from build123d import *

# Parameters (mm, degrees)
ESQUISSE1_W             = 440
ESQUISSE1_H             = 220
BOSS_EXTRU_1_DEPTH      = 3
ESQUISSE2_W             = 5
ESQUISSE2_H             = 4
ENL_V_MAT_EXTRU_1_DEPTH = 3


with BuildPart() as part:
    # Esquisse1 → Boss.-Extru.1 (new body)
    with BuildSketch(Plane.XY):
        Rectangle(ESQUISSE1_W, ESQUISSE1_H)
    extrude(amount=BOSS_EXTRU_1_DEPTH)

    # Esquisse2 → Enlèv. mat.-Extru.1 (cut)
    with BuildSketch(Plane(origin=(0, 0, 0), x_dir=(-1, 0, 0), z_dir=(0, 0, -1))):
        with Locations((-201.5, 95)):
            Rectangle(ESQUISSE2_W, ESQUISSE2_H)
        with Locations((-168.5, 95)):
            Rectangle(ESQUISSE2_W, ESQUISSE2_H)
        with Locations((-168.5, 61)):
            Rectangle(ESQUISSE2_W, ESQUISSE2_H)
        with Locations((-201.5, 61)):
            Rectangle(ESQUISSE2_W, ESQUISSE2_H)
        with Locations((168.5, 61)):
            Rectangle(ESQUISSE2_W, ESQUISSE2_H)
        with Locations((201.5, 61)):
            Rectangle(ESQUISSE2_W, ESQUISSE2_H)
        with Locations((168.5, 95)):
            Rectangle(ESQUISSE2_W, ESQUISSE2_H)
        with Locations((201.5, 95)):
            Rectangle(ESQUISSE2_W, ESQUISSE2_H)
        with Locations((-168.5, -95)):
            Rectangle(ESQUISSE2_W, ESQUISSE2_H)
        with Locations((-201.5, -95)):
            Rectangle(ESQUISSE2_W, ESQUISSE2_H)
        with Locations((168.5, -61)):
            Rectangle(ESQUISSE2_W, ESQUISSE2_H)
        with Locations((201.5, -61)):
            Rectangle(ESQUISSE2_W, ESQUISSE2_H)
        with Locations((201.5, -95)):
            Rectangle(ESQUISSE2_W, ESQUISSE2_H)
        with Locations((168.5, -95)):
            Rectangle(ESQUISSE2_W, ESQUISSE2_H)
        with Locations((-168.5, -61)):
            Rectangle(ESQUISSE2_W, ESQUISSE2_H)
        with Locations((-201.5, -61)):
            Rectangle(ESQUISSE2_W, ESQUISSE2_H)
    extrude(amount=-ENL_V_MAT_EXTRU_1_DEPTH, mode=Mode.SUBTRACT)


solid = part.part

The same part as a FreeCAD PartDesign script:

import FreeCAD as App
import Part
import Sketcher
Q = App.Units.Quantity

doc = App.newDocument("Part")
body = doc.addObject("PartDesign::Body", "Body")

# Sketch on XY plane
sketch1 = body.newObject("Sketcher::SketchObject", "Sketch")
sketch1.AttachmentSupport = (doc.getObject("XY_Plane"), [""])
sketch1.MapMode = "FlatFace"
sketch1.addGeometry(Part.LineSegment(App.Vector(-220, 110, 0), App.Vector(-220, -110, 0)), False)
sketch1.addGeometry(Part.LineSegment(App.Vector(-220, -110, 0), App.Vector(220, -110, 0)), False)
sketch1.addGeometry(Part.LineSegment(App.Vector(220, -110, 0), App.Vector(220, 110, 0)), False)
sketch1.addGeometry(Part.LineSegment(App.Vector(220, 110, 0), App.Vector(-220, 110, 0)), False)
sketch1.addConstraint(Sketcher.Constraint("Coincident", 0, 2, 1, 1))
sketch1.addConstraint(Sketcher.Constraint("Coincident", 1, 2, 2, 1))
sketch1.addConstraint(Sketcher.Constraint("Coincident", 2, 2, 3, 1))
sketch1.addConstraint(Sketcher.Constraint("Coincident", 3, 2, 0, 1))
sketch1.addConstraint(Sketcher.Constraint("Vertical", 0))
sketch1.addConstraint(Sketcher.Constraint("Horizontal", 1))
sketch1.addConstraint(Sketcher.Constraint("Vertical", 2))
sketch1.addConstraint(Sketcher.Constraint("Horizontal", 3))
sketch1.addConstraint(Sketcher.Constraint("Symmetric", 0, 2, 2, 2, -1, 1))
sketch1.addConstraint(Sketcher.Constraint("DistanceX", 1, 1, 1, 2, Q("440 mm")))
sketch1.addConstraint(Sketcher.Constraint("DistanceY", 0, 2, 0, 1, Q("220 mm")))
pad1 = body.newObject("PartDesign::Pad", "Pad")
pad1.Profile = sketch1
pad1.Length = 3

# Sketch on XY plane
sketch2 = body.newObject("Sketcher::SketchObject", "Sketch001")
sketch2.AttachmentSupport = (doc.getObject("XY_Plane"), [""])
sketch2.MapMode = "FlatFace"
sketch2.addGeometry(Part.LineSegment(App.Vector(204, 97, 0), App.Vector(204, 93, 0)), False)
sketch2.addGeometry(Part.LineSegment(App.Vector(204, 93, 0), App.Vector(199, 93, 0)), False)
sketch2.addGeometry(Part.LineSegment(App.Vector(199, 93, 0), App.Vector(199, 97, 0)), False)
sketch2.addGeometry(Part.LineSegment(App.Vector(199, 97, 0), App.Vector(204, 97, 0)), False)
sketch2.addGeometry(Part.LineSegment(App.Vector(171, 97, 0), App.Vector(171, 93, 0)), False)
sketch2.addGeometry(Part.LineSegment(App.Vector(171, 93, 0), App.Vector(166, 93, 0)), False)
sketch2.addGeometry(Part.LineSegment(App.Vector(166, 93, 0), App.Vector(166, 97, 0)), False)
sketch2.addGeometry(Part.LineSegment(App.Vector(166, 97, 0), App.Vector(171, 97, 0)), False)
sketch2.addGeometry(Part.LineSegment(App.Vector(171, 63, 0), App.Vector(171, 59, 0)), False)
sketch2.addGeometry(Part.LineSegment(App.Vector(171, 59, 0), App.Vector(166, 59, 0)), False)
sketch2.addGeometry(Part.LineSegment(App.Vector(166, 59, 0), App.Vector(166, 63, 0)), False)
sketch2.addGeometry(Part.LineSegment(App.Vector(166, 63, 0), App.Vector(171, 63, 0)), False)
sketch2.addGeometry(Part.LineSegment(App.Vector(204, 63, 0), App.Vector(204, 59, 0)), False)
sketch2.addGeometry(Part.LineSegment(App.Vector(204, 59, 0), App.Vector(199, 59, 0)), False)
sketch2.addGeometry(Part.LineSegment(App.Vector(199, 59, 0), App.Vector(199, 63, 0)), False)
sketch2.addGeometry(Part.LineSegment(App.Vector(199, 63, 0), App.Vector(204, 63, 0)), False)
sketch2.addGeometry(Part.LineSegment(App.Vector(-166, 63, 0), App.Vector(-166, 59, 0)), False)
sketch2.addGeometry(Part.LineSegment(App.Vector(-166, 59, 0), App.Vector(-171, 59, 0)), False)
sketch2.addGeometry(Part.LineSegment(App.Vector(-171, 59, 0), App.Vector(-171, 63, 0)), False)
sketch2.addGeometry(Part.LineSegment(App.Vector(-171, 63, 0), App.Vector(-166, 63, 0)), False)
sketch2.addGeometry(Part.LineSegment(App.Vector(-199, 63, 0), App.Vector(-199, 59, 0)), False)
sketch2.addGeometry(Part.LineSegment(App.Vector(-199, 59, 0), App.Vector(-204, 59, 0)), False)
sketch2.addGeometry(Part.LineSegment(App.Vector(-204, 59, 0), App.Vector(-204, 63, 0)), False)
sketch2.addGeometry(Part.LineSegment(App.Vector(-204, 63, 0), App.Vector(-199, 63, 0)), False)
sketch2.addGeometry(Part.LineSegment(App.Vector(-166, 97, 0), App.Vector(-166, 93, 0)), False)
sketch2.addGeometry(Part.LineSegment(App.Vector(-166, 93, 0), App.Vector(-171, 93, 0)), False)
sketch2.addGeometry(Part.LineSegment(App.Vector(-171, 93, 0), App.Vector(-171, 97, 0)), False)
sketch2.addGeometry(Part.LineSegment(App.Vector(-171, 97, 0), App.Vector(-166, 97, 0)), False)
sketch2.addGeometry(Part.LineSegment(App.Vector(-199, 97, 0), App.Vector(-199, 93, 0)), False)
sketch2.addGeometry(Part.LineSegment(App.Vector(-199, 93, 0), App.Vector(-204, 93, 0)), False)
sketch2.addGeometry(Part.LineSegment(App.Vector(-204, 93, 0), App.Vector(-204, 97, 0)), False)
sketch2.addGeometry(Part.LineSegment(App.Vector(-204, 97, 0), App.Vector(-199, 97, 0)), False)
sketch2.addGeometry(Part.LineSegment(App.Vector(171, -93, 0), App.Vector(171, -97, 0)), False)
sketch2.addGeometry(Part.LineSegment(App.Vector(171, -97, 0), App.Vector(166, -97, 0)), False)
sketch2.addGeometry(Part.LineSegment(App.Vector(166, -97, 0), App.Vector(166, -93, 0)), False)
sketch2.addGeometry(Part.LineSegment(App.Vector(166, -93, 0), App.Vector(171, -93, 0)), False)
sketch2.addGeometry(Part.LineSegment(App.Vector(204, -93, 0), App.Vector(204, -97, 0)), False)
sketch2.addGeometry(Part.LineSegment(App.Vector(204, -97, 0), App.Vector(199, -97, 0)), False)
sketch2.addGeometry(Part.LineSegment(App.Vector(199, -97, 0), App.Vector(199, -93, 0)), False)
sketch2.addGeometry(Part.LineSegment(App.Vector(199, -93, 0), App.Vector(204, -93, 0)), False)
sketch2.addGeometry(Part.LineSegment(App.Vector(-166, -59, 0), App.Vector(-166, -63, 0)), False)
sketch2.addGeometry(Part.LineSegment(App.Vector(-166, -63, 0), App.Vector(-171, -63, 0)), False)
sketch2.addGeometry(Part.LineSegment(App.Vector(-171, -63, 0), App.Vector(-171, -59, 0)), False)
sketch2.addGeometry(Part.LineSegment(App.Vector(-171, -59, 0), App.Vector(-166, -59, 0)), False)
sketch2.addGeometry(Part.LineSegment(App.Vector(-199, -59, 0), App.Vector(-199, -63, 0)), False)
sketch2.addGeometry(Part.LineSegment(App.Vector(-199, -63, 0), App.Vector(-204, -63, 0)), False)
sketch2.addGeometry(Part.LineSegment(App.Vector(-204, -63, 0), App.Vector(-204, -59, 0)), False)
sketch2.addGeometry(Part.LineSegment(App.Vector(-204, -59, 0), App.Vector(-199, -59, 0)), False)
sketch2.addGeometry(Part.LineSegment(App.Vector(-199, -93, 0), App.Vector(-199, -97, 0)), False)
sketch2.addGeometry(Part.LineSegment(App.Vector(-199, -97, 0), App.Vector(-204, -97, 0)), False)
sketch2.addGeometry(Part.LineSegment(App.Vector(-204, -97, 0), App.Vector(-204, -93, 0)), False)
sketch2.addGeometry(Part.LineSegment(App.Vector(-204, -93, 0), App.Vector(-199, -93, 0)), False)
sketch2.addGeometry(Part.LineSegment(App.Vector(-166, -93, 0), App.Vector(-166, -97, 0)), False)
sketch2.addGeometry(Part.LineSegment(App.Vector(-166, -97, 0), App.Vector(-171, -97, 0)), False)
sketch2.addGeometry(Part.LineSegment(App.Vector(-171, -97, 0), App.Vector(-171, -93, 0)), False)
sketch2.addGeometry(Part.LineSegment(App.Vector(-171, -93, 0), App.Vector(-166, -93, 0)), False)
sketch2.addGeometry(Part.LineSegment(App.Vector(171, -59, 0), App.Vector(171, -63, 0)), False)
sketch2.addGeometry(Part.LineSegment(App.Vector(171, -63, 0), App.Vector(166, -63, 0)), False)
sketch2.addGeometry(Part.LineSegment(App.Vector(166, -63, 0), App.Vector(166, -59, 0)), False)
sketch2.addGeometry(Part.LineSegment(App.Vector(166, -59, 0), App.Vector(171, -59, 0)), False)
sketch2.addGeometry(Part.LineSegment(App.Vector(204, -59, 0), App.Vector(204, -63, 0)), False)
sketch2.addGeometry(Part.LineSegment(App.Vector(204, -63, 0), App.Vector(199, -63, 0)), False)
sketch2.addGeometry(Part.LineSegment(App.Vector(199, -63, 0), App.Vector(199, -59, 0)), False)
sketch2.addGeometry(Part.LineSegment(App.Vector(199, -59, 0), App.Vector(204, -59, 0)), False)
sketch2.addConstraint(Sketcher.Constraint("Coincident", 0, 2, 1, 1))
sketch2.addConstraint(Sketcher.Constraint("Coincident", 1, 2, 2, 1))
sketch2.addConstraint(Sketcher.Constraint("Coincident", 2, 2, 3, 1))
sketch2.addConstraint(Sketcher.Constraint("Coincident", 3, 2, 0, 1))
sketch2.addConstraint(Sketcher.Constraint("Coincident", 4, 2, 5, 1))
sketch2.addConstraint(Sketcher.Constraint("Coincident", 5, 2, 6, 1))
sketch2.addConstraint(Sketcher.Constraint("Coincident", 6, 2, 7, 1))
sketch2.addConstraint(Sketcher.Constraint("Coincident", 7, 2, 4, 1))
sketch2.addConstraint(Sketcher.Constraint("Coincident", 8, 2, 9, 1))
sketch2.addConstraint(Sketcher.Constraint("Coincident", 9, 2, 10, 1))
sketch2.addConstraint(Sketcher.Constraint("Coincident", 10, 2, 11, 1))
sketch2.addConstraint(Sketcher.Constraint("Coincident", 11, 2, 8, 1))
sketch2.addConstraint(Sketcher.Constraint("Coincident", 12, 2, 13, 1))
sketch2.addConstraint(Sketcher.Constraint("Coincident", 13, 2, 14, 1))
sketch2.addConstraint(Sketcher.Constraint("Coincident", 14, 2, 15, 1))
sketch2.addConstraint(Sketcher.Constraint("Coincident", 15, 2, 12, 1))
sketch2.addConstraint(Sketcher.Constraint("Coincident", 16, 2, 17, 1))
sketch2.addConstraint(Sketcher.Constraint("Coincident", 17, 2, 18, 1))
sketch2.addConstraint(Sketcher.Constraint("Coincident", 18, 2, 19, 1))
sketch2.addConstraint(Sketcher.Constraint("Coincident", 19, 2, 16, 1))
sketch2.addConstraint(Sketcher.Constraint("Coincident", 20, 2, 21, 1))
sketch2.addConstraint(Sketcher.Constraint("Coincident", 21, 2, 22, 1))
sketch2.addConstraint(Sketcher.Constraint("Coincident", 22, 2, 23, 1))
sketch2.addConstraint(Sketcher.Constraint("Coincident", 23, 2, 20, 1))
sketch2.addConstraint(Sketcher.Constraint("Coincident", 24, 2, 25, 1))
sketch2.addConstraint(Sketcher.Constraint("Coincident", 25, 2, 26, 1))
sketch2.addConstraint(Sketcher.Constraint("Coincident", 26, 2, 27, 1))
sketch2.addConstraint(Sketcher.Constraint("Coincident", 27, 2, 24, 1))
sketch2.addConstraint(Sketcher.Constraint("Coincident", 28, 2, 29, 1))
sketch2.addConstraint(Sketcher.Constraint("Coincident", 29, 2, 30, 1))
sketch2.addConstraint(Sketcher.Constraint("Coincident", 30, 2, 31, 1))
sketch2.addConstraint(Sketcher.Constraint("Coincident", 31, 2, 28, 1))
sketch2.addConstraint(Sketcher.Constraint("Coincident", 32, 2, 33, 1))
sketch2.addConstraint(Sketcher.Constraint("Coincident", 33, 2, 34, 1))
sketch2.addConstraint(Sketcher.Constraint("Coincident", 34, 2, 35, 1))
sketch2.addConstraint(Sketcher.Constraint("Coincident", 35, 2, 32, 1))
sketch2.addConstraint(Sketcher.Constraint("Coincident", 36, 2, 37, 1))
sketch2.addConstraint(Sketcher.Constraint("Coincident", 37, 2, 38, 1))
sketch2.addConstraint(Sketcher.Constraint("Coincident", 38, 2, 39, 1))
sketch2.addConstraint(Sketcher.Constraint("Coincident", 39, 2, 36, 1))
sketch2.addConstraint(Sketcher.Constraint("Coincident", 40, 2, 41, 1))
sketch2.addConstraint(Sketcher.Constraint("Coincident", 41, 2, 42, 1))
sketch2.addConstraint(Sketcher.Constraint("Coincident", 42, 2, 43, 1))
sketch2.addConstraint(Sketcher.Constraint("Coincident", 43, 2, 40, 1))
sketch2.addConstraint(Sketcher.Constraint("Coincident", 44, 2, 45, 1))
sketch2.addConstraint(Sketcher.Constraint("Coincident", 45, 2, 46, 1))
sketch2.addConstraint(Sketcher.Constraint("Coincident", 46, 2, 47, 1))
sketch2.addConstraint(Sketcher.Constraint("Coincident", 47, 2, 44, 1))
sketch2.addConstraint(Sketcher.Constraint("Coincident", 48, 2, 49, 1))
sketch2.addConstraint(Sketcher.Constraint("Coincident", 49, 2, 50, 1))
sketch2.addConstraint(Sketcher.Constraint("Coincident", 50, 2, 51, 1))
sketch2.addConstraint(Sketcher.Constraint("Coincident", 51, 2, 48, 1))
sketch2.addConstraint(Sketcher.Constraint("Coincident", 52, 2, 53, 1))
sketch2.addConstraint(Sketcher.Constraint("Coincident", 53, 2, 54, 1))
sketch2.addConstraint(Sketcher.Constraint("Coincident", 54, 2, 55, 1))
sketch2.addConstraint(Sketcher.Constraint("Coincident", 55, 2, 52, 1))
sketch2.addConstraint(Sketcher.Constraint("Coincident", 56, 2, 57, 1))
sketch2.addConstraint(Sketcher.Constraint("Coincident", 57, 2, 58, 1))
sketch2.addConstraint(Sketcher.Constraint("Coincident", 58, 2, 59, 1))
sketch2.addConstraint(Sketcher.Constraint("Coincident", 59, 2, 56, 1))
sketch2.addConstraint(Sketcher.Constraint("Coincident", 60, 2, 61, 1))
sketch2.addConstraint(Sketcher.Constraint("Coincident", 61, 2, 62, 1))
sketch2.addConstraint(Sketcher.Constraint("Coincident", 62, 2, 63, 1))
sketch2.addConstraint(Sketcher.Constraint("Coincident", 63, 2, 60, 1))
sketch2.addConstraint(Sketcher.Constraint("Vertical", 0))
sketch2.addConstraint(Sketcher.Constraint("Horizontal", 1))
sketch2.addConstraint(Sketcher.Constraint("Vertical", 2))
sketch2.addConstraint(Sketcher.Constraint("Horizontal", 3))
sketch2.addConstraint(Sketcher.Constraint("Vertical", 4))
sketch2.addConstraint(Sketcher.Constraint("Horizontal", 5))
sketch2.addConstraint(Sketcher.Constraint("Vertical", 6))
sketch2.addConstraint(Sketcher.Constraint("Horizontal", 7))
sketch2.addConstraint(Sketcher.Constraint("Vertical", 8))
sketch2.addConstraint(Sketcher.Constraint("Horizontal", 9))
sketch2.addConstraint(Sketcher.Constraint("Vertical", 10))
sketch2.addConstraint(Sketcher.Constraint("Horizontal", 11))
sketch2.addConstraint(Sketcher.Constraint("Vertical", 12))
sketch2.addConstraint(Sketcher.Constraint("Horizontal", 13))
sketch2.addConstraint(Sketcher.Constraint("Vertical", 14))
sketch2.addConstraint(Sketcher.Constraint("Horizontal", 15))
sketch2.addConstraint(Sketcher.Constraint("Vertical", 16))
sketch2.addConstraint(Sketcher.Constraint("Horizontal", 17))
sketch2.addConstraint(Sketcher.Constraint("Vertical", 18))
sketch2.addConstraint(Sketcher.Constraint("Horizontal", 19))
sketch2.addConstraint(Sketcher.Constraint("Vertical", 20))
sketch2.addConstraint(Sketcher.Constraint("Horizontal", 21))
sketch2.addConstraint(Sketcher.Constraint("Vertical", 22))
sketch2.addConstraint(Sketcher.Constraint("Horizontal", 23))
sketch2.addConstraint(Sketcher.Constraint("Vertical", 24))
sketch2.addConstraint(Sketcher.Constraint("Horizontal", 25))
sketch2.addConstraint(Sketcher.Constraint("Vertical", 26))
sketch2.addConstraint(Sketcher.Constraint("Horizontal", 27))
sketch2.addConstraint(Sketcher.Constraint("Vertical", 28))
sketch2.addConstraint(Sketcher.Constraint("Horizontal", 29))
sketch2.addConstraint(Sketcher.Constraint("Vertical", 30))
sketch2.addConstraint(Sketcher.Constraint("Horizontal", 31))
sketch2.addConstraint(Sketcher.Constraint("Vertical", 32))
sketch2.addConstraint(Sketcher.Constraint("Horizontal", 33))
sketch2.addConstraint(Sketcher.Constraint("Vertical", 34))
sketch2.addConstraint(Sketcher.Constraint("Horizontal", 35))
sketch2.addConstraint(Sketcher.Constraint("Vertical", 36))
sketch2.addConstraint(Sketcher.Constraint("Horizontal", 37))
sketch2.addConstraint(Sketcher.Constraint("Vertical", 38))
sketch2.addConstraint(Sketcher.Constraint("Horizontal", 39))
sketch2.addConstraint(Sketcher.Constraint("Vertical", 40))
sketch2.addConstraint(Sketcher.Constraint("Horizontal", 41))
sketch2.addConstraint(Sketcher.Constraint("Vertical", 42))
sketch2.addConstraint(Sketcher.Constraint("Horizontal", 43))
sketch2.addConstraint(Sketcher.Constraint("Vertical", 44))
sketch2.addConstraint(Sketcher.Constraint("Horizontal", 45))
sketch2.addConstraint(Sketcher.Constraint("Vertical", 46))
sketch2.addConstraint(Sketcher.Constraint("Horizontal", 47))
sketch2.addConstraint(Sketcher.Constraint("Vertical", 48))
sketch2.addConstraint(Sketcher.Constraint("Horizontal", 49))
sketch2.addConstraint(Sketcher.Constraint("Vertical", 50))
sketch2.addConstraint(Sketcher.Constraint("Horizontal", 51))
sketch2.addConstraint(Sketcher.Constraint("Vertical", 52))
sketch2.addConstraint(Sketcher.Constraint("Horizontal", 53))
sketch2.addConstraint(Sketcher.Constraint("Vertical", 54))
sketch2.addConstraint(Sketcher.Constraint("Horizontal", 55))
sketch2.addConstraint(Sketcher.Constraint("Vertical", 56))
sketch2.addConstraint(Sketcher.Constraint("Horizontal", 57))
sketch2.addConstraint(Sketcher.Constraint("Vertical", 58))
sketch2.addConstraint(Sketcher.Constraint("Horizontal", 59))
sketch2.addConstraint(Sketcher.Constraint("Vertical", 60))
sketch2.addConstraint(Sketcher.Constraint("Horizontal", 61))
sketch2.addConstraint(Sketcher.Constraint("Vertical", 62))
sketch2.addConstraint(Sketcher.Constraint("Horizontal", 63))
sketch2.addConstraint(Sketcher.Constraint("Symmetric", 26, 2, 32, 2, -1, 1))
sketch2.addConstraint(Sketcher.Constraint("Symmetric", 24, 2, 34, 2, -1, 1))
sketch2.addConstraint(Sketcher.Constraint("Symmetric", 30, 2, 36, 2, -1, 1))
sketch2.addConstraint(Sketcher.Constraint("Symmetric", 28, 2, 38, 2, -1, 1))
sketch2.addConstraint(Sketcher.Constraint("Symmetric", 10, 2, 40, 2, -1, 1))
sketch2.addConstraint(Sketcher.Constraint("Symmetric", 8, 2, 42, 2, -1, 1))
sketch2.addConstraint(Sketcher.Constraint("Symmetric", 14, 2, 44, 2, -1, 1))
sketch2.addConstraint(Sketcher.Constraint("Symmetric", 12, 2, 46, 2, -1, 1))
sketch2.addConstraint(Sketcher.Constraint("Symmetric", 2, 2, 48, 2, -1, 1))
sketch2.addConstraint(Sketcher.Constraint("Symmetric", 0, 2, 50, 2, -1, 1))
sketch2.addConstraint(Sketcher.Constraint("Symmetric", 6, 2, 52, 2, -1, 1))
sketch2.addConstraint(Sketcher.Constraint("Symmetric", 4, 2, 54, 2, -1, 1))
sketch2.addConstraint(Sketcher.Constraint("Symmetric", 18, 2, 56, 2, -1, 1))
sketch2.addConstraint(Sketcher.Constraint("Symmetric", 16, 2, 58, 2, -1, 1))
sketch2.addConstraint(Sketcher.Constraint("Symmetric", 22, 2, 60, 2, -1, 1))
sketch2.addConstraint(Sketcher.Constraint("Symmetric", 20, 2, 62, 2, -1, 1))
sketch2.addConstraint(Sketcher.Constraint("Symmetric", 9, 2, 16, 2, -2))
sketch2.addConstraint(Sketcher.Constraint("Symmetric", 11, 2, 18, 2, -2))
sketch2.addConstraint(Sketcher.Constraint("Symmetric", 13, 2, 20, 2, -2))
sketch2.addConstraint(Sketcher.Constraint("Symmetric", 15, 2, 22, 2, -2))
sketch2.addConstraint(Sketcher.Constraint("Symmetric", 5, 2, 24, 2, -2))
sketch2.addConstraint(Sketcher.Constraint("Symmetric", 7, 2, 26, 2, -2))
sketch2.addConstraint(Sketcher.Constraint("Symmetric", 1, 2, 28, 2, -2))
sketch2.addConstraint(Sketcher.Constraint("Symmetric", 3, 2, 30, 2, -2))
sketch2.addConstraint(Sketcher.Constraint("Horizontal", 1, 2, 4, 2))
sketch2.addConstraint(Sketcher.Constraint("Horizontal", 3, 2, 6, 2))
sketch2.addConstraint(Sketcher.Constraint("Horizontal", 9, 2, 12, 2))
sketch2.addConstraint(Sketcher.Constraint("Horizontal", 11, 2, 14, 2))
sketch2.addConstraint(Sketcher.Constraint("Vertical", 7, 2, 8, 2))
sketch2.addConstraint(Sketcher.Constraint("Vertical", 6, 2, 9, 2))
sketch2.addConstraint(Sketcher.Constraint("Vertical", 3, 2, 12, 2))
sketch2.addConstraint(Sketcher.Constraint("Vertical", 2, 2, 13, 2))
sketch2.addConstraint(Sketcher.Constraint("Equal", 3, 5))
sketch2.addConstraint(Sketcher.Constraint("Equal", 6, 8))
sketch2.addConstraint(Sketcher.Constraint("DistanceX", 1, 2, 1, 1, Q("5 mm")))
sketch2.addConstraint(Sketcher.Constraint("DistanceY", 0, 2, 0, 1, Q("4 mm")))
sketch2.addConstraint(Sketcher.Constraint("DistanceX", -1, 1, 0, 2, Q("204 mm")))
sketch2.addConstraint(Sketcher.Constraint("DistanceY", -1, 1, 0, 2, Q("93 mm")))
sketch2.addConstraint(Sketcher.Constraint("DistanceX", -1, 1, 4, 2, Q("171 mm")))
sketch2.addConstraint(Sketcher.Constraint("DistanceY", -1, 1, 8, 2, Q("59 mm")))
pocket1 = body.newObject("PartDesign::Pocket", "Pocket")
pocket1.Profile = sketch2
pocket1.Length = 3
pocket1.Reversed = True

doc.recompute()
